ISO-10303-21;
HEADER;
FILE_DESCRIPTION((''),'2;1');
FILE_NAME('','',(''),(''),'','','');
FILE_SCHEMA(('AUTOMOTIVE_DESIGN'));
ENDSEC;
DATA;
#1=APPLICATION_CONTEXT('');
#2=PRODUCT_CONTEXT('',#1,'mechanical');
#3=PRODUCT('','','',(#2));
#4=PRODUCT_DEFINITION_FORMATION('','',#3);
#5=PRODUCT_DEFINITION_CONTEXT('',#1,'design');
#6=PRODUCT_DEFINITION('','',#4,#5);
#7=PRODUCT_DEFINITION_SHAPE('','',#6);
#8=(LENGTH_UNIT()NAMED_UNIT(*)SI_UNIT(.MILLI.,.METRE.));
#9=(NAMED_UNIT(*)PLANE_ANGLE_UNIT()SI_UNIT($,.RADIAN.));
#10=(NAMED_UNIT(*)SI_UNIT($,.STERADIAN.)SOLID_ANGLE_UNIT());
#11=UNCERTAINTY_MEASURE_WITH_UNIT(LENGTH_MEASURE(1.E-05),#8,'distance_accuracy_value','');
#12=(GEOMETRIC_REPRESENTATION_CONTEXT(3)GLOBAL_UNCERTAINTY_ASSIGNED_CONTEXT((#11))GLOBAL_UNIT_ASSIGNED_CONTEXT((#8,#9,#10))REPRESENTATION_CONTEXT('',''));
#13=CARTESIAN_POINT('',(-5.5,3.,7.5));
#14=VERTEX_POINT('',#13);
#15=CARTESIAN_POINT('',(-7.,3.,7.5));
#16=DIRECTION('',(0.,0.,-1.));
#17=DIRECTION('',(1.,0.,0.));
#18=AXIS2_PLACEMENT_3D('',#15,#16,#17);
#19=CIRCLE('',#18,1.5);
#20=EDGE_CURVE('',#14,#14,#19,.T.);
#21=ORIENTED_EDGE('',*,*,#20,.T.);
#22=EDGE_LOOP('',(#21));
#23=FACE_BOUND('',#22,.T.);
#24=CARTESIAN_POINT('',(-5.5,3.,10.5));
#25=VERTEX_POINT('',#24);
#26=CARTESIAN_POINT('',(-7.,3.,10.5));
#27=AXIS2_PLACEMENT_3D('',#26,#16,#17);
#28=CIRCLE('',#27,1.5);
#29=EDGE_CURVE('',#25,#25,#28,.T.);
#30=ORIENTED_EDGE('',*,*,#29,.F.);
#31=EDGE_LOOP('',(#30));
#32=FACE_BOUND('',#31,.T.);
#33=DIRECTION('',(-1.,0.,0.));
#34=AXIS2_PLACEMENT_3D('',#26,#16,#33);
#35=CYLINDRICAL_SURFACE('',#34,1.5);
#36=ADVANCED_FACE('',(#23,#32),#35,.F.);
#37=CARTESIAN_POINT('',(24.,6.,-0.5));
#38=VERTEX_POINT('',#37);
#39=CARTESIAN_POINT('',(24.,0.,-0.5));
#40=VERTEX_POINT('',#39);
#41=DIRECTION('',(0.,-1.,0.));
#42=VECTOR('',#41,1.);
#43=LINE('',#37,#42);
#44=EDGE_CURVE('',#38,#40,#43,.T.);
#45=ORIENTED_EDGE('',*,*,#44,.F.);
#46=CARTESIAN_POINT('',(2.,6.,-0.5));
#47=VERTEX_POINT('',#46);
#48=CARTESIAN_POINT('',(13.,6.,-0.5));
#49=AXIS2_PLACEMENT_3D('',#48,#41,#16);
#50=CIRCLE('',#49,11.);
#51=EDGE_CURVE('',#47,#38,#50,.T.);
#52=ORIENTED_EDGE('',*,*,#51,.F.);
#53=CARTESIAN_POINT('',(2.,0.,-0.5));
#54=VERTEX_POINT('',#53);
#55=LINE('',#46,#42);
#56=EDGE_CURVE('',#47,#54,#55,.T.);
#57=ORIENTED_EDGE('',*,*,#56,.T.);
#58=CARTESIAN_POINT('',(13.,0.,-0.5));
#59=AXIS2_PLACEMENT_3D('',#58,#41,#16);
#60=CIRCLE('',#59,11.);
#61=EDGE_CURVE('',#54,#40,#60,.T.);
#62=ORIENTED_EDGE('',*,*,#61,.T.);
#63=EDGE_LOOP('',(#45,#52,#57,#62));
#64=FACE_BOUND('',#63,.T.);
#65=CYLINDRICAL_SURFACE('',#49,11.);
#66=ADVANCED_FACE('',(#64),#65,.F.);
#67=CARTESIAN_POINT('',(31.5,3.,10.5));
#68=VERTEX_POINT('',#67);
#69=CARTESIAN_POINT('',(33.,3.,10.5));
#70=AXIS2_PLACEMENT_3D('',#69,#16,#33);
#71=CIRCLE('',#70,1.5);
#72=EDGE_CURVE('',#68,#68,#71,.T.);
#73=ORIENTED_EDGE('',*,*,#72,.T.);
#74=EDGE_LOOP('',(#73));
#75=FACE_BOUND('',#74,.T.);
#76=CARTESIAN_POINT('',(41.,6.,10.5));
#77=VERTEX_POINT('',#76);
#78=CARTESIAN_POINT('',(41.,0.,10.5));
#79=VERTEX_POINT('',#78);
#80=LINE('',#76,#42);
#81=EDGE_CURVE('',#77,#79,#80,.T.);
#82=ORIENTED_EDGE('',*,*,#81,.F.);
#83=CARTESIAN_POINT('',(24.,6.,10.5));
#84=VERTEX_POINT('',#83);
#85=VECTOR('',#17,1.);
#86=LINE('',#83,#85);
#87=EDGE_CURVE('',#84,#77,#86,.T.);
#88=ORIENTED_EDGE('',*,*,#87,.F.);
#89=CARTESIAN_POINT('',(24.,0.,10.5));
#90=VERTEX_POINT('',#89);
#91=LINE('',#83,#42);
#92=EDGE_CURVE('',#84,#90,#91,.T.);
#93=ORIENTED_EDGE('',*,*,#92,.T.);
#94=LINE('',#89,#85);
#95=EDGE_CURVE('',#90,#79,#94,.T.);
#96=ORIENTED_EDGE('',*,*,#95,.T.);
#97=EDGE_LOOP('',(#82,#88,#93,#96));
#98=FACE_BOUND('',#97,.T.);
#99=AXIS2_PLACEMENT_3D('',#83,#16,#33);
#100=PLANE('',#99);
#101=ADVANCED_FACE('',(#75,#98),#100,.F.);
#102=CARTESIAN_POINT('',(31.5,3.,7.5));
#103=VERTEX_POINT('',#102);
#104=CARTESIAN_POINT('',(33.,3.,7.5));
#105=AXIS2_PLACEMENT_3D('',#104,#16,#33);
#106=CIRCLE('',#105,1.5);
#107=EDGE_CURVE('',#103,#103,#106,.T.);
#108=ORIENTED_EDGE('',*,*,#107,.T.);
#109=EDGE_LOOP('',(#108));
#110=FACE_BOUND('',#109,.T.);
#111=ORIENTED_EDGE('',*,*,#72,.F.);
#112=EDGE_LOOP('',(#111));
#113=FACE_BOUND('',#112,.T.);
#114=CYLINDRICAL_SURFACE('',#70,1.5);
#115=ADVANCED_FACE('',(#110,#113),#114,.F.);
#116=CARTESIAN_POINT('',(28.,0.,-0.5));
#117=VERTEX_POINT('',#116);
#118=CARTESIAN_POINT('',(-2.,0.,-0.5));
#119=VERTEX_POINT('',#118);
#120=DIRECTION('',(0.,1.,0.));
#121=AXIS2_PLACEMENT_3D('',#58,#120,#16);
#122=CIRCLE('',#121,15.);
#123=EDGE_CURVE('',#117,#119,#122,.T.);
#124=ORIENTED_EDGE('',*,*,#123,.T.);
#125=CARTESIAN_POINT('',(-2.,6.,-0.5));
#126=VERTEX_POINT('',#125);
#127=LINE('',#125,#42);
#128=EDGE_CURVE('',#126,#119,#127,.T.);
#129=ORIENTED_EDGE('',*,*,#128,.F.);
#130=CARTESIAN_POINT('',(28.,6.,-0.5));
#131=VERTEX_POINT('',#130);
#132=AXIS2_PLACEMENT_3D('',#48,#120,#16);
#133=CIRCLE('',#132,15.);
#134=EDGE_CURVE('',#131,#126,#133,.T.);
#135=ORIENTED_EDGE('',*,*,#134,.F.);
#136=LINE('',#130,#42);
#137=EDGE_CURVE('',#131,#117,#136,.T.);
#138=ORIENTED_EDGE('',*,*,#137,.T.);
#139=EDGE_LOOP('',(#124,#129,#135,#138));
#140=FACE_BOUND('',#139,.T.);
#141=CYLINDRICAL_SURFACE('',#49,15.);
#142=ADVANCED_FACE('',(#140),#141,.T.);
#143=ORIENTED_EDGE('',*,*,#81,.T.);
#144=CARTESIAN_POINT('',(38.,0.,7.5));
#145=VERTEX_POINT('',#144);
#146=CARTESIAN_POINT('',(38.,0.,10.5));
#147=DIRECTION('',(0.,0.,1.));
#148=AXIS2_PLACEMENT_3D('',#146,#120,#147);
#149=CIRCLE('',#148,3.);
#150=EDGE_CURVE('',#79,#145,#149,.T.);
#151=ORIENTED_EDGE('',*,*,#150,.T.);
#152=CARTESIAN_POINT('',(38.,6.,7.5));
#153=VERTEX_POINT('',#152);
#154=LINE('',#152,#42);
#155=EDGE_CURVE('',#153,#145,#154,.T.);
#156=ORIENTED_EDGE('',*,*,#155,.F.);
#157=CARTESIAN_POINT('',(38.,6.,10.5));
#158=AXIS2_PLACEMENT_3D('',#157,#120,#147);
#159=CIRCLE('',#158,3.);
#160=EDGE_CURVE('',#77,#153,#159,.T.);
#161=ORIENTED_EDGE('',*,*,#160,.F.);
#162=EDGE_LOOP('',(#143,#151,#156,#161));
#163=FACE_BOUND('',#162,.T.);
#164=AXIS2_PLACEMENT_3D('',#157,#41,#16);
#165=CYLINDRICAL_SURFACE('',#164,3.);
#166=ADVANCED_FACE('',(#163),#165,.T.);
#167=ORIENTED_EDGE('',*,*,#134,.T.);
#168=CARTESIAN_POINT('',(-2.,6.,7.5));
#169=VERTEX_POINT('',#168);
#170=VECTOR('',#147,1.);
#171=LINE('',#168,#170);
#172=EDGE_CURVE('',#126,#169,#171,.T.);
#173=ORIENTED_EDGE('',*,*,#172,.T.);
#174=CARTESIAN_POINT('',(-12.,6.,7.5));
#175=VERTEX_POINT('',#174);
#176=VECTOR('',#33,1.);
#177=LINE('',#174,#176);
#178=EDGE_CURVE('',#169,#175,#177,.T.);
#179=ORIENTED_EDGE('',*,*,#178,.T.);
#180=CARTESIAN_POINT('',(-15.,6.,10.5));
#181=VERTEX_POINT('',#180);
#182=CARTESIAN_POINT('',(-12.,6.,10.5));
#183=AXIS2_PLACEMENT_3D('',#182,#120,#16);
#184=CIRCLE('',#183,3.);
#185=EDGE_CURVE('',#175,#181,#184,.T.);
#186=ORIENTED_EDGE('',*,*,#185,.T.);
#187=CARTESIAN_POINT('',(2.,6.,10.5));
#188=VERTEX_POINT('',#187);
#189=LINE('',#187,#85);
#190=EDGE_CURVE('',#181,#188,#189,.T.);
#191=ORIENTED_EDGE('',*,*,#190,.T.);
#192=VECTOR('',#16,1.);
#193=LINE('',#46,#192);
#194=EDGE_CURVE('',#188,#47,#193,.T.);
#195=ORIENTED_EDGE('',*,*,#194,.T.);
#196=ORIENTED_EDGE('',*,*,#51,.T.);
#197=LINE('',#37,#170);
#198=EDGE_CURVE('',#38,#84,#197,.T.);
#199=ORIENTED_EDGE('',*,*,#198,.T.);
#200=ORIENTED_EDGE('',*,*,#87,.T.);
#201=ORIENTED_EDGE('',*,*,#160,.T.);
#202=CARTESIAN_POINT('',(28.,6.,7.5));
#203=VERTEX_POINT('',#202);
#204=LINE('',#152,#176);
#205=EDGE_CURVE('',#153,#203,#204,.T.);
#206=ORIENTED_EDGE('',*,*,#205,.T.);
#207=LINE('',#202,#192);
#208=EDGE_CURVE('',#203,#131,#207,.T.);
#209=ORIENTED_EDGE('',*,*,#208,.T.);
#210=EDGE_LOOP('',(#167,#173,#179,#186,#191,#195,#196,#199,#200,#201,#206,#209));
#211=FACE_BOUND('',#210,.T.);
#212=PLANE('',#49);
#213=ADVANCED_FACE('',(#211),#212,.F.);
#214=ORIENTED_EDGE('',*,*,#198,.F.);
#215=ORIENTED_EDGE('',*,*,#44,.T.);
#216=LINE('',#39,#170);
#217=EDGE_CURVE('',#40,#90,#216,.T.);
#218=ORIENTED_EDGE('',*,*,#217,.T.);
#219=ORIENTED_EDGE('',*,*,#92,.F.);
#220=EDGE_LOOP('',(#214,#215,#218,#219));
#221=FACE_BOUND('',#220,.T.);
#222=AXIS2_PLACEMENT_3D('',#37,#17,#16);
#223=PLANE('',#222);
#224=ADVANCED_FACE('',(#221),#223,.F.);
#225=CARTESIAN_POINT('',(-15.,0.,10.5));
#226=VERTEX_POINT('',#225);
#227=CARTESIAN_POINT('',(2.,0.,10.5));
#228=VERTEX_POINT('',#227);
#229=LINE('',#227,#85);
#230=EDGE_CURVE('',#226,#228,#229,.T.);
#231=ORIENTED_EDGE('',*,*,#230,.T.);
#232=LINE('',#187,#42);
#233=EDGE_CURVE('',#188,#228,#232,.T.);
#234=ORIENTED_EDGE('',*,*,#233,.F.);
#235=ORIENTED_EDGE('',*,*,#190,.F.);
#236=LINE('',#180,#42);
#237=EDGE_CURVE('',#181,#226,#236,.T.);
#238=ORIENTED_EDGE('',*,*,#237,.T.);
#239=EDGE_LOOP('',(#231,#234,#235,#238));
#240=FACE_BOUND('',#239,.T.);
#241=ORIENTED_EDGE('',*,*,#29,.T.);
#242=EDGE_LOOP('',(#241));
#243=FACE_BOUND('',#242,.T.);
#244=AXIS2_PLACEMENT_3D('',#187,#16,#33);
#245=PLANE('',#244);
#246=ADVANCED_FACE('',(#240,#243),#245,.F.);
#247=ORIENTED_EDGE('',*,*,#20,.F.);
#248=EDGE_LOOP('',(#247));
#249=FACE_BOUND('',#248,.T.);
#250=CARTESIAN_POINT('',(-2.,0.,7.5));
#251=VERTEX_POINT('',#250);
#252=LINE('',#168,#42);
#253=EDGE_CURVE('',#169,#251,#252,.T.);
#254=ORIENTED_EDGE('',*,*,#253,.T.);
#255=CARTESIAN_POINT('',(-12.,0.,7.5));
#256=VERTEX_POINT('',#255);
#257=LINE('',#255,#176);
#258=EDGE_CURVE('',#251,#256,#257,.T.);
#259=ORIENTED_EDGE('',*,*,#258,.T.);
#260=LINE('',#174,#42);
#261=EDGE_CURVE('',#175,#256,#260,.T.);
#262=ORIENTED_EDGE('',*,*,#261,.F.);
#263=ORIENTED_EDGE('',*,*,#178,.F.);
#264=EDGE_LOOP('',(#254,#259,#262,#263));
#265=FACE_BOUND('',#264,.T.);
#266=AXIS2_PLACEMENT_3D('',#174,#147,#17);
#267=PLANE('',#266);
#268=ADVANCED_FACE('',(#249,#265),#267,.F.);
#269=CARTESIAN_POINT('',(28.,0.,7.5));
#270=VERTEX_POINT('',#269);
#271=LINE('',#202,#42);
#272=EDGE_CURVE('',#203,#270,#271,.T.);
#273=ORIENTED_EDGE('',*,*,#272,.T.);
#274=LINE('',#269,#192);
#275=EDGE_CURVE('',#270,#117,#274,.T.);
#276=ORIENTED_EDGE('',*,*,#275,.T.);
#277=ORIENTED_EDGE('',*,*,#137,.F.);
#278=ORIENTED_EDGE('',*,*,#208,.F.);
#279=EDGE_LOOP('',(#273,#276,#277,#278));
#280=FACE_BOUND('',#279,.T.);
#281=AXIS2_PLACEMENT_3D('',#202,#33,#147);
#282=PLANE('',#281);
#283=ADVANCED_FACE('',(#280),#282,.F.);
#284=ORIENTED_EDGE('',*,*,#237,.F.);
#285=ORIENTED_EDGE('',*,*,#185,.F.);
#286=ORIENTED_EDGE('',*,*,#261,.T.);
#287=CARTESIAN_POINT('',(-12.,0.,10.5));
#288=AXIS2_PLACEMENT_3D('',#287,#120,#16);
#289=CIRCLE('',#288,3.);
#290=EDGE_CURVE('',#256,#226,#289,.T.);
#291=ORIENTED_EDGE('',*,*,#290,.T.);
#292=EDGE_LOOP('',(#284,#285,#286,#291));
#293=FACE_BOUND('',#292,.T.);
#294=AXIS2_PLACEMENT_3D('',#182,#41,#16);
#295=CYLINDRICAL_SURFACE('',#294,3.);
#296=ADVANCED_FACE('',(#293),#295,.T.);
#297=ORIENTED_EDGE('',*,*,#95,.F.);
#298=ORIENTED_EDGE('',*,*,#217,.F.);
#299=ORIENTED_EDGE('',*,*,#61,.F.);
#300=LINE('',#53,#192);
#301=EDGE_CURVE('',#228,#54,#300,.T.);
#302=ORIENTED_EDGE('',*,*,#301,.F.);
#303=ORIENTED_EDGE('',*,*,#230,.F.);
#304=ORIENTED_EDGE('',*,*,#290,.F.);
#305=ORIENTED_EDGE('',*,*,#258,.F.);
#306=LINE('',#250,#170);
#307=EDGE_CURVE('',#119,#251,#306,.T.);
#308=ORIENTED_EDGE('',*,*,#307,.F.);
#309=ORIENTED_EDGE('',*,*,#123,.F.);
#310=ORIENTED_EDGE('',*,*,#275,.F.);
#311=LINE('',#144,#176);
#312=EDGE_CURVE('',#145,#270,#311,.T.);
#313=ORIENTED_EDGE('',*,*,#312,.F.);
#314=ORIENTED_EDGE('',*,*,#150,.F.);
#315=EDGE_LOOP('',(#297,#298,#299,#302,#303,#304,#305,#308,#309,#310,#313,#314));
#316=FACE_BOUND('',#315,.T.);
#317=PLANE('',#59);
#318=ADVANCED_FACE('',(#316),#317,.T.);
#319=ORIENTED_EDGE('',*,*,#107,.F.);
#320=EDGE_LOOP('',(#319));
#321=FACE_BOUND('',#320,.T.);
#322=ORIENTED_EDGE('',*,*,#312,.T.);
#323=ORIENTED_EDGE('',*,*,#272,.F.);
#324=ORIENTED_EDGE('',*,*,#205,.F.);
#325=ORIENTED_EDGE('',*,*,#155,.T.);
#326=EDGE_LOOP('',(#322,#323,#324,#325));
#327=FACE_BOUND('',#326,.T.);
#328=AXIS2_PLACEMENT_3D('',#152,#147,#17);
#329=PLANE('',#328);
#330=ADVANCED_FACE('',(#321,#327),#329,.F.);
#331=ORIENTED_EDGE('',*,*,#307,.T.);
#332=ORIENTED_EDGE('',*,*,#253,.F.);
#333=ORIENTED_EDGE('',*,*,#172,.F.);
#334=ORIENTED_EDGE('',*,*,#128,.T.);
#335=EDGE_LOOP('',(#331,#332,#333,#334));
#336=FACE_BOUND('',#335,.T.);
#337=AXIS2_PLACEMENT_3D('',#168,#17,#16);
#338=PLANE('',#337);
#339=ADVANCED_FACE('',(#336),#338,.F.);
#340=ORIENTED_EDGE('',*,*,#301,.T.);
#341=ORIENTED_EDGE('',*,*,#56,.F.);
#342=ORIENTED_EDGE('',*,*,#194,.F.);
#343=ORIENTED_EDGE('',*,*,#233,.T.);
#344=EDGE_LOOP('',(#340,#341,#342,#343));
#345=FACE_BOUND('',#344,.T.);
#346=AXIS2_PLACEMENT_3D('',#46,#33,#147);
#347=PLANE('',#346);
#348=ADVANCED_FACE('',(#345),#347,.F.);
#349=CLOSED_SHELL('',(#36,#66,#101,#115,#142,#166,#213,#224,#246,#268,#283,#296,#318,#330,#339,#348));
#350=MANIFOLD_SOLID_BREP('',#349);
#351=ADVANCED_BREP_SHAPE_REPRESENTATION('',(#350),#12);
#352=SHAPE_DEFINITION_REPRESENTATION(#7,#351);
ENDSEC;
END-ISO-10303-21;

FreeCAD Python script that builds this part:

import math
import FreeCAD as App
import Part
import Sketcher

V = App.Vector

doc = App.newDocument("Part")
body = doc.addObject("PartDesign::Body", "Body")

sketch1 = body.newObject("Sketcher::SketchObject", "Sketch")
sketch1.AttachmentSupport = (doc.getObject("XZ_Plane"), [""])
sketch1.MapMode = "FlatFace"
sketch1.addGeometry([
    Part.LineSegment(V(24, -0.5, 0), V(24, 10.5, 0)),
    Part.LineSegment(V(24, 10.5, 0), V(41, 10.5, 0)),
    Part.ArcOfCircle(Part.Circle(V(38, 10.5, 0), V(0, 0, 1), 3), math.radians(-90), math.radians(0)),
    Part.LineSegment(V(38, 7.5, 0), V(28, 7.5, 0)),
    Part.LineSegment(V(28, 7.5, 0), V(28, -0.5, 0)),
    Part.ArcOfCircle(Part.Circle(V(13, -0.5, 0), V(0, 0, 1), 15), math.radians(180), math.radians(360)),
    Part.LineSegment(V(-2, -0.5, 0), V(-2, 7.5, 0)),
    Part.LineSegment(V(-2, 7.5, 0), V(-12, 7.5, 0)),
    Part.ArcOfCircle(Part.Circle(V(-12, 10.5, 0), V(0, 0, 1), 3), math.radians(180), math.radians(270)),
    Part.LineSegment(V(-15, 10.5, 0), V(2, 10.5, 0)),
    Part.LineSegment(V(2, 10.5, 0), V(2, -0.5, 0)),
    Part.ArcOfCircle(Part.Circle(V(13, -0.5, 0), V(0, 0, 1), 11), math.radians(180), math.radians(360)),
], False)
sketch1.addConstraint([
    Sketcher.Constraint("Coincident", 0, 2, 1, 1),
    Sketcher.Constraint("Coincident", 1, 2, 2, 2),
    Sketcher.Constraint("Tangent", 2, 1, 3, 1),
    Sketcher.Constraint("Coincident", 3, 2, 4, 1),
    Sketcher.Constraint("Tangent", 4, 2, 5, 2),
    Sketcher.Constraint("Tangent", 5, 1, 6, 1),
    Sketcher.Constraint("Coincident", 6, 2, 7, 1),
    Sketcher.Constraint("Tangent", 7, 2, 8, 2),
    Sketcher.Constraint("Coincident", 8, 1, 9, 1),
    Sketcher.Constraint("Coincident", 9, 2, 10, 1),
    Sketcher.Constraint("Tangent", 10, 2, 11, 1),
    Sketcher.Constraint("Tangent", 11, 2, 0, 1),
    Sketcher.Constraint("Vertical", 0),
    Sketcher.Constraint("Horizontal", 1),
    Sketcher.Constraint("Horizontal", 3),
    Sketcher.Constraint("Vertical", 4),
    Sketcher.Constraint("Vertical", 6),
    Sketcher.Constraint("Horizontal", 7),
    Sketcher.Constraint("Horizontal", 9),
    Sketcher.Constraint("Vertical", 10),
    Sketcher.Constraint("Coincident", 11, 3, 5, 3),
    Sketcher.Constraint("Equal", 2, 8),
    Sketcher.Constraint("Horizontal", 2, 3, 8, 3),
    Sketcher.Constraint("Horizontal", 8, 3, 0, 2),
    Sketcher.Constraint("Horizontal", 1, 2, 8, 1),
    Sketcher.Constraint("Equal", 3, 7),
    Sketcher.Constraint("Radius", 2, 3.0),
    Sketcher.Constraint("Radius", 5, 15.0),
    Sketcher.Constraint("Radius", 11, 11.0),
    Sketcher.Constraint("DistanceX", 1, 1, 1, 2, 17.0),
    Sketcher.Constraint("DistanceY", 0, 1, 0, 2, 11.0),
    Sketcher.Constraint("DistanceX", -1, 1, 2, 3, 38.0),
    Sketcher.Constraint("DistanceY", -1, 1, 2, 3, 10.5),
])
pad1 = body.newObject("PartDesign::Pad", "Pad")
pad1.Profile = sketch1
pad1.Length = 6
pad1.Reversed = True

sketch2 = body.newObject("Sketcher::SketchObject", "Sketch001")
sketch2.AttachmentSupport = (doc.getObject("XY_Plane"), [""])
sketch2.MapMode = "FlatFace"
sketch2.AttachmentOffset = App.Placement(V(0, 0, 7.5), App.Rotation())
sketch2.addGeometry([
    Part.Circle(V(33, 3, 0), V(0, 0, 1), 1.5),
    Part.Circle(V(-7, 3, 0), V(0, 0, 1), 1.5),
], False)
sketch2.addConstraint([
    Sketcher.Constraint("Equal", 0, 1),
    Sketcher.Constraint("Horizontal", 0, 3, 1, 3),
    Sketcher.Constraint("Diameter", 0, 3.0),
    Sketcher.Constraint("DistanceX", -1, 1, 0, 3, 33.0),
    Sketcher.Constraint("DistanceY", -1, 1, 0, 3, 3.0),
    Sketcher.Constraint("DistanceX", 1, 3, -1, 1, 7.0),
])
pocket1 = body.newObject("PartDesign::Pocket", "Pocket")
pocket1.Profile = sketch2
pocket1.Type = "ThroughAll"
pocket1.Reversed = True

doc.recompute()
